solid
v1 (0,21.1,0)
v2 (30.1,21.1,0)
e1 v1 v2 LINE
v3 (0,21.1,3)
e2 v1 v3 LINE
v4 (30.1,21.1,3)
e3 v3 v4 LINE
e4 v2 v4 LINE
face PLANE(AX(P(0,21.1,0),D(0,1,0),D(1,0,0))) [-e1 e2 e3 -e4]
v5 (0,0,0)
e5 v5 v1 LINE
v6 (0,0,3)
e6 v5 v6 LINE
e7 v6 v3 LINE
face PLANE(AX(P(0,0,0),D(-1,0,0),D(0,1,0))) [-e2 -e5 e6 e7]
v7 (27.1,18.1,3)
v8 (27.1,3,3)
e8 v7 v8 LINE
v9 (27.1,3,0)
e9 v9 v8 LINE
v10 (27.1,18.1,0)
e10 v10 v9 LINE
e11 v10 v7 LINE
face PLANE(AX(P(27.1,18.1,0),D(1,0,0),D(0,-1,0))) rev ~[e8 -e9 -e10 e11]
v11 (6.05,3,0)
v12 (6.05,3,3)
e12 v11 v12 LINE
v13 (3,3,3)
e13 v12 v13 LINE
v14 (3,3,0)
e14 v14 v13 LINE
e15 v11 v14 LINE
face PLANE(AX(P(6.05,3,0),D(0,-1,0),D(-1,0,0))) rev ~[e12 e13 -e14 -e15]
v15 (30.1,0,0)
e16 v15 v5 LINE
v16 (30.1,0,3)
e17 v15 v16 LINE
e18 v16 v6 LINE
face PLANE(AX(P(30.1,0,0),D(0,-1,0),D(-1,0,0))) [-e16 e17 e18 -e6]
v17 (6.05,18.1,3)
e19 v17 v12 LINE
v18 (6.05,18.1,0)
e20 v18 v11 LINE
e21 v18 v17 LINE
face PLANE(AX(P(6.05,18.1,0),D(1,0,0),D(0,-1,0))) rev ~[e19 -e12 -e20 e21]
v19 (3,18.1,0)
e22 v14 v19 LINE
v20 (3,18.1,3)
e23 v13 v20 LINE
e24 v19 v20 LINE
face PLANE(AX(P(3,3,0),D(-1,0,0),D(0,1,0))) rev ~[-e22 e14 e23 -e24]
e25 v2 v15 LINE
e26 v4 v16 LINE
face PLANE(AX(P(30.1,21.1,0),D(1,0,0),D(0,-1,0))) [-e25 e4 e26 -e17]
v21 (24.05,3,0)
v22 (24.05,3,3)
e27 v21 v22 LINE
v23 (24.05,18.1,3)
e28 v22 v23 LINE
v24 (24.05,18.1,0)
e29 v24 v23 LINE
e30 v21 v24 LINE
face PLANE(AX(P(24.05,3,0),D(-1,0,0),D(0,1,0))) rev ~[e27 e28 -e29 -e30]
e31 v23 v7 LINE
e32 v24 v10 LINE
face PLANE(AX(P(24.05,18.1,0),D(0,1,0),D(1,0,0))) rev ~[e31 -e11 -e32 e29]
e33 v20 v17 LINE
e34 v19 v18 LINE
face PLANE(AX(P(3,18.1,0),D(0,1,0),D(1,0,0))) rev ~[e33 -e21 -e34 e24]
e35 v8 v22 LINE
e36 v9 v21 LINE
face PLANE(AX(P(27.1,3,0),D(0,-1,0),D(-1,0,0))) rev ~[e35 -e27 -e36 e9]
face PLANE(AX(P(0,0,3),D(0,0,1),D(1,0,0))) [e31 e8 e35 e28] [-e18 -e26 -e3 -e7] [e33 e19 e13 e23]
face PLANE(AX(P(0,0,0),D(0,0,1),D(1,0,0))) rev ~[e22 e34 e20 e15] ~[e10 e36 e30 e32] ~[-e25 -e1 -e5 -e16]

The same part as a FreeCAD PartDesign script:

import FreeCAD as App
import Part
import Sketcher

V = App.Vector
Q = App.Units.Quantity

doc = App.newDocument("Part")
body = doc.addObject("PartDesign::Body", "Body")

# Sketch on XY plane
sketch1 = body.newObject("Sketcher::SketchObject", "Sketch")
sketch1.AttachmentSupport = (doc.getObject("XY_Plane"), [""])
sketch1.MapMode = "FlatFace"
sketch1.addGeometry([
    Part.LineSegment(V(30.1, 21.1, 0), V(0, 21.1, 0)),  # 0
    Part.LineSegment(V(0, 21.1, 0), V(0, 0, 0)),  # 1
    Part.LineSegment(V(0, 0, 0), V(30.1, 0, 0)),  # 2
    Part.LineSegment(V(30.1, 0, 0), V(30.1, 21.1, 0)),  # 3
    Part.LineSegment(V(3, 3, 0), V(3, 18.1, 0)),  # 4
    Part.LineSegment(V(3, 18.1, 0), V(6, 18.1, 0)),  # 5
    Part.LineSegment(V(6, 18.1, 0), V(6, 3, 0)),  # 6
    Part.LineSegment(V(6, 3, 0), V(3, 3, 0)),  # 7
    Part.LineSegment(V(24.1, 3, 0), V(24.1, 18.1, 0)),  # 8
    Part.LineSegment(V(24.1, 18.1, 0), V(27.1, 18.1, 0)),  # 9
    Part.LineSegment(V(27.1, 18.1, 0), V(27.1, 3, 0)),  # 10
    Part.LineSegment(V(27.1, 3, 0), V(24.1, 3, 0)),  # 11
], False)
sketch1.addConstraint([
    Sketcher.Constraint("Coincident", 0, 2, 1, 1),
    Sketcher.Constraint("Coincident", 1, 2, 2, 1),
    Sketcher.Constraint("Coincident", 2, 2, 3, 1),
    Sketcher.Constraint("Coincident", 3, 2, 0, 1),
    Sketcher.Constraint("Coincident", 4, 2, 5, 1),
    Sketcher.Constraint("Coincident", 5, 2, 6, 1),
    Sketcher.Constraint("Coincident", 6, 2, 7, 1),
    Sketcher.Constraint("Coincident", 7, 2, 4, 1),
    Sketcher.Constraint("Coincident", 8, 2, 9, 1),
    Sketcher.Constraint("Coincident", 9, 2, 10, 1),
    Sketcher.Constraint("Coincident", 10, 2, 11, 1),
    Sketcher.Constraint("Coincident", 11, 2, 8, 1),
    Sketcher.Constraint("Horizontal", 0),
    Sketcher.Constraint("Vertical", 1),
    Sketcher.Constraint("Horizontal", 2),
    Sketcher.Constraint("Vertical", 3),
    Sketcher.Constraint("Vertical", 4),
    Sketcher.Constraint("Horizontal", 5),
    Sketcher.Constraint("Vertical", 6),
    Sketcher.Constraint("Horizontal", 7),
    Sketcher.Constraint("Vertical", 8),
    Sketcher.Constraint("Horizontal", 9),
    Sketcher.Constraint("Vertical", 10),
    Sketcher.Constraint("Horizontal", 11),
    Sketcher.Constraint("Coincident", 1, 2, -1, 1),
    Sketcher.Constraint("Horizontal", 5, 2, 8, 2),
    Sketcher.Constraint("Horizontal", 7, 2, 10, 2),
    Sketcher.Constraint("Equal", 7, 9),
    Sketcher.Constraint("DistanceY", 4, 1, 4, 2, Q("15.1 mm")),
    Sketcher.Constraint("DistanceX", -1, 1, 4, 2, Q("3 mm")),
    Sketcher.Constraint("DistanceY", -1, 1, 6, 2, Q("3 mm")),
    Sketcher.Constraint("DistanceY", 4, 2, 0, 2, Q("3 mm")),
    Sketcher.Constraint("DistanceX", 5, 2, 8, 2, Q("18 mm")),
    Sketcher.Constraint("DistanceX", 9, 2, 3, 2, Q("3 mm")),
    Sketcher.Constraint("DistanceX", 5, 1, 5, 2, Q("3.05 mm")),
])
pad1 = body.newObject("PartDesign::Pad", "Pad")
pad1.Profile = sketch1
pad1.Length = 3

doc.recompute()
